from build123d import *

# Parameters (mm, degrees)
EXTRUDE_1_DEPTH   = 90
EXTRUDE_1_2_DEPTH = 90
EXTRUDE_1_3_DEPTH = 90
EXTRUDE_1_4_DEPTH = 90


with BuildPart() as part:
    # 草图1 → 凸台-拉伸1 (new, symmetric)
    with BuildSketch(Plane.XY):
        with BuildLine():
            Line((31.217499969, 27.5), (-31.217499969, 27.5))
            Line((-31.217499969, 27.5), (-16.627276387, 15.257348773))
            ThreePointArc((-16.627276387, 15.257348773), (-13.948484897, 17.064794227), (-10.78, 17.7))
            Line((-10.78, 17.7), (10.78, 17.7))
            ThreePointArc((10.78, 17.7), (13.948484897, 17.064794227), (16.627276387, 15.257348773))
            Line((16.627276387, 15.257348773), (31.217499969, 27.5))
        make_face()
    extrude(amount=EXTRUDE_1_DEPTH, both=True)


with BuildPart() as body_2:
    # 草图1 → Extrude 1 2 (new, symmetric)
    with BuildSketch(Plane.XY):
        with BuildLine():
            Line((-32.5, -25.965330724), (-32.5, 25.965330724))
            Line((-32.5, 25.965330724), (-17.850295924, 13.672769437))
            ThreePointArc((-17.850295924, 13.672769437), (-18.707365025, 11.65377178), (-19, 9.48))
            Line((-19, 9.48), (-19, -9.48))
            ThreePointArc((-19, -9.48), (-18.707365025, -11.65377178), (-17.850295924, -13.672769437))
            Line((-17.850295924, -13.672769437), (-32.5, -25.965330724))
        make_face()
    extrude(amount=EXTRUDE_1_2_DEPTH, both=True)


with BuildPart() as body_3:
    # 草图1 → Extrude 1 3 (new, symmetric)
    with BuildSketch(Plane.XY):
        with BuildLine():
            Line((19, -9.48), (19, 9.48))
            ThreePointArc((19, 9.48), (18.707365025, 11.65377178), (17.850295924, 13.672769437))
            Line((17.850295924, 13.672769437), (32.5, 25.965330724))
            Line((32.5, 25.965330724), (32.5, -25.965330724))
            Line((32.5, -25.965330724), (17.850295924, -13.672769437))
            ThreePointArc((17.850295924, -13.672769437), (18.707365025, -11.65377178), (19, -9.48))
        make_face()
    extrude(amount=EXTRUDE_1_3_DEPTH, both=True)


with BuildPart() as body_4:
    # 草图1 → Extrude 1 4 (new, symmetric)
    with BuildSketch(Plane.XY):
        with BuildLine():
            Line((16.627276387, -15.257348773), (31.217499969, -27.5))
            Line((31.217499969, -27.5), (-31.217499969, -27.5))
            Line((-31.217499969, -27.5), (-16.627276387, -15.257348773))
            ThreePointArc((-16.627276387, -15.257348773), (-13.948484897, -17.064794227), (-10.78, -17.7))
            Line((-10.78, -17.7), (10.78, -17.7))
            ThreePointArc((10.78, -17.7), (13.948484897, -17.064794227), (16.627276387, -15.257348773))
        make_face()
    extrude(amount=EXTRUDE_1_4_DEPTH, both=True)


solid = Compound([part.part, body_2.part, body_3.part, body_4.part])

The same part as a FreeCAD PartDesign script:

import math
import FreeCAD as App
import Part
import Sketcher
Q = App.Units.Quantity

doc = App.newDocument("Part")
params = doc.addObject("Spreadsheet::Sheet", "Params")
for row, (alias, value) in enumerate([
    ("sketch1_radius", "8.22 mm"),
    ("sketch1_width", "21.56 mm"),
    ("pad1_length", "180 mm"),
    ("sketch2_radius", "8.22 mm"),
    ("sketch2_height", "18.96 mm"),
    ("pad2_length", "180 mm"),
    ("sketch3_radius", "8.22 mm"),
    ("sketch3_height", "18.96 mm"),
    ("pad3_length", "180 mm"),
    ("sketch4_radius", "8.22 mm"),
    ("sketch4_width", "21.56 mm"),
    ("pad4_length", "180 mm"),
], start=1):
    params.set(f"A{row}", alias)
    params.set(f"B{row}", "=" + value)
    params.setAlias(f"B{row}", alias)

body = doc.addObject("PartDesign::Body", "Body")

sketch1 = body.newObject("Sketcher::SketchObject", "Sketch")
sketch1.AttachmentSupport = (doc.getObject("XY_Plane"), [""])
sketch1.MapMode = "FlatFace"
sketch1.addGeometry(Part.LineSegment(App.Vector(31, 28, 0), App.Vector(-31, 28, 0)), False)
sketch1.addGeometry(Part.LineSegment(App.Vector(-31, 28, 0), App.Vector(-17, 15, 0)), False)
sketch1.addGeometry(Part.ArcOfCircle(Part.Circle(App.Vector(-11, 9, 0), App.Vector(0, 0, 1), 8), math.radians(90), math.radians(135)), False)
sketch1.addGeometry(Part.LineSegment(App.Vector(-11, 18, 0), App.Vector(11, 18, 0)), False)
sketch1.addGeometry(Part.ArcOfCircle(Part.Circle(App.Vector(11, 9, 0), App.Vector(0, 0, 1), 8), math.radians(45), math.radians(90)), False)
sketch1.addGeometry(Part.LineSegment(App.Vector(17, 15, 0), App.Vector(31, 28, 0)), False)
sketch1.addConstraint(Sketcher.Constraint("Coincident", 0, 2, 1, 1))
sketch1.addConstraint(Sketcher.Constraint("Coincident", 1, 2, 2, 2))
sketch1.addConstraint(Sketcher.Constraint("Tangent", 2, 1, 3, 1))
sketch1.addConstraint(Sketcher.Constraint("Tangent", 3, 2, 4, 2))
sketch1.addConstraint(Sketcher.Constraint("Coincident", 4, 1, 5, 1))
sketch1.addConstraint(Sketcher.Constraint("Coincident", 5, 2, 0, 1))
sketch1.addConstraint(Sketcher.Constraint("Horizontal", 0))
sketch1.addConstraint(Sketcher.Constraint("Horizontal", 3))
sketch1.addConstraint(Sketcher.Constraint("Equal", 2, 4))
sketch1.addConstraint(Sketcher.Constraint("Symmetric", 1, 2, 4, 1, -2))
sketch1.addConstraint(Sketcher.Constraint("Equal", 1, 5))
sketch1.addConstraint(Sketcher.Constraint("Angle", 1, Q("-40 deg")))
sketch1.addConstraint(Sketcher.Constraint("Radius", 2, Q("8.22 mm")))
sketch1.addConstraint(Sketcher.Constraint("DistanceX", 3, 1, 3, 2, Q("21.56 mm")))
sketch1.addConstraint(Sketcher.Constraint("DistanceY", -1, 1, 0, 2, Q("27.5 mm")))
sketch1.addConstraint(Sketcher.Constraint("DistanceY", -1, 1, 2, 1, Q("17.7 mm")))
sketch1.addConstraint(Sketcher.Constraint("DistanceX", 0, 2, 0, 1, Q("62.435 mm")))
sketch1.setExpression("Constraints[12]", "Params.sketch1_radius")
sketch1.setExpression("Constraints[13]", "Params.sketch1_width")
pad1 = body.newObject("PartDesign::Pad", "Pad")
pad1.Profile = sketch1
pad1.setExpression("Length", "Params.pad1_length")
pad1.Midplane = True
body2 = doc.addObject("PartDesign::Body", "Body001")

sketch2 = body2.newObject("Sketcher::SketchObject", "Sketch001")
sketch2.AttachmentSupport = (doc.getObject("XY_Plane001"), [""])
sketch2.MapMode = "FlatFace"
sketch2.addGeometry(Part.LineSegment(App.Vector(-32.5, 26, 0), App.Vector(-32.5, -26, 0)), False)
sketch2.addGeometry(Part.LineSegment(App.Vector(-32.5, -26, 0), App.Vector(-17.9, -13.7, 0)), False)
sketch2.addGeometry(Part.ArcOfCircle(Part.Circle(App.Vector(-10.8, -9.5, 0), App.Vector(0, 0, 1), 8.2), math.radians(-180), math.radians(-149)), False)
sketch2.addGeometry(Part.LineSegment(App.Vector(-19, -9.5, 0), App.Vector(-19, 9.5, 0)), False)
sketch2.addGeometry(Part.ArcOfCircle(Part.Circle(App.Vector(-10.8, 9.5, 0), App.Vector(0, 0, 1), 8.2), math.radians(149), math.radians(180)), False)
sketch2.addGeometry(Part.LineSegment(App.Vector(-17.9, 13.7, 0), App.Vector(-32.5, 26, 0)), False)
sketch2.addConstraint(Sketcher.Constraint("Coincident", 0, 2, 1, 1))
sketch2.addConstraint(Sketcher.Constraint("Coincident", 1, 2, 2, 2))
sketch2.addConstraint(Sketcher.Constraint("Tangent", 2, 1, 3, 1))
sketch2.addConstraint(Sketcher.Constraint("Tangent", 3, 2, 4, 2))
sketch2.addConstraint(Sketcher.Constraint("Coincident", 4, 1, 5, 1))
sketch2.addConstraint(Sketcher.Constraint("Coincident", 5, 2, 0, 1))
sketch2.addConstraint(Sketcher.Constraint("Vertical", 0))
sketch2.addConstraint(Sketcher.Constraint("Vertical", 3))
sketch2.addConstraint(Sketcher.Constraint("Equal", 2, 4))
sketch2.addConstraint(Sketcher.Constraint("Symmetric", 1, 2, 4, 1, -1))
sketch2.addConstraint(Sketcher.Constraint("Equal", 1, 5))
sketch2.addConstraint(Sketcher.Constraint("Angle", 1, Q("40 deg")))
sketch2.addConstraint(Sketcher.Constraint("Radius", 2, Q("8.22 mm")))
sketch2.addConstraint(Sketcher.Constraint("DistanceX", 2, 1, -1, 1, Q("19 mm")))
sketch2.addConstraint(Sketcher.Constraint("DistanceY", 3, 1, 3, 2, Q("18.96 mm")))
sketch2.addConstraint(Sketcher.Constraint("DistanceX", 0, 2, -1, 1, Q("32.5 mm")))
sketch2.addConstraint(Sketcher.Constraint("DistanceY", 0, 2, 0, 1, Q("51.930661 mm")))
sketch2.setExpression("Constraints[12]", "Params.sketch2_radius")
sketch2.setExpression("Constraints[14]", "Params.sketch2_height")
pad2 = body2.newObject("PartDesign::Pad", "Pad001")
pad2.Profile = sketch2
pad2.setExpression("Length", "Params.pad2_length")
pad2.Midplane = True
body3 = doc.addObject("PartDesign::Body", "Body002")

sketch3 = body3.newObject("Sketcher::SketchObject", "Sketch002")
sketch3.AttachmentSupport = (doc.getObject("XY_Plane002"), [""])
sketch3.MapMode = "FlatFace"
sketch3.addGeometry(Part.LineSegment(App.Vector(19, 9.5, 0), App.Vector(19, -9.5, 0)), False)
sketch3.addGeometry(Part.ArcOfCircle(Part.Circle(App.Vector(10.8, -9.5, 0), App.Vector(0, 0, 1), 8.2), math.radians(-31), math.radians(0)), False)
sketch3.addGeometry(Part.LineSegment(App.Vector(17.9, -13.7, 0), App.Vector(32.5, -26, 0)), False)
sketch3.addGeometry(Part.LineSegment(App.Vector(32.5, -26, 0), App.Vector(32.5, 26, 0)), False)
sketch3.addGeometry(Part.LineSegment(App.Vector(32.5, 26, 0), App.Vector(17.9, 13.7, 0)), False)
sketch3.addGeometry(Part.ArcOfCircle(Part.Circle(App.Vector(10.8, 9.5, 0), App.Vector(0, 0, 1), 8.2), math.radians(0), math.radians(31)), False)
sketch3.addConstraint(Sketcher.Constraint("Tangent", 0, 2, 1, 2))
sketch3.addConstraint(Sketcher.Constraint("Coincident", 1, 1, 2, 1))
sketch3.addConstraint(Sketcher.Constraint("Coincident", 2, 2, 3, 1))
sketch3.addConstraint(Sketcher.Constraint("Coincident", 3, 2, 4, 1))
sketch3.addConstraint(Sketcher.Constraint("Coincident", 4, 2, 5, 2))
sketch3.addConstraint(Sketcher.Constraint("Tangent", 5, 1, 0, 1))
sketch3.addConstraint(Sketcher.Constraint("Vertical", 0))
sketch3.addConstraint(Sketcher.Constraint("Vertical", 3))
sketch3.addConstraint(Sketcher.Constraint("Equal", 1, 5))
sketch3.addConstraint(Sketcher.Constraint("Symmetric", 1, 1, 4, 2, -1))
sketch3.addConstraint(Sketcher.Constraint("Equal", 2, 4))
sketch3.addConstraint(Sketcher.Constraint("Angle", 2, Q("-40 deg")))
sketch3.addConstraint(Sketcher.Constraint("Radius", 1, Q("8.22 mm")))
sketch3.addConstraint(Sketcher.Constraint("DistanceX", -1, 1, 0, 2, Q("19 mm")))
sketch3.addConstraint(Sketcher.Constraint("DistanceY", 0, 2, 0, 1, Q("18.96 mm")))
sketch3.addConstraint(Sketcher.Constraint("DistanceX", -1, 1, 2, 2, Q("32.5 mm")))
sketch3.addConstraint(Sketcher.Constraint("DistanceY", 3, 1, 3, 2, Q("51.930661 mm")))
sketch3.setExpression("Constraints[12]", "Params.sketch3_radius")
sketch3.setExpression("Constraints[14]", "Params.sketch3_height")
pad3 = body3.newObject("PartDesign::Pad", "Pad002")
pad3.Profile = sketch3
pad3.setExpression("Length", "Params.pad3_length")
pad3.Midplane = True
body4 = doc.addObject("PartDesign::Body", "Body003")

sketch4 = body4.newObject("Sketcher::SketchObject", "Sketch003")
sketch4.AttachmentSupport = (doc.getObject("XY_Plane003"), [""])
sketch4.MapMode = "FlatFace"
sketch4.addGeometry(Part.LineSegment(App.Vector(31, -28, 0), App.Vector(17, -15, 0)), False)
sketch4.addGeometry(Part.ArcOfCircle(Part.Circle(App.Vector(11, -9, 0), App.Vector(0, 0, 1), 8), math.radians(-90), math.radians(-45)), False)
sketch4.addGeometry(Part.LineSegment(App.Vector(11, -18, 0), App.Vector(-11, -18, 0)), False)
sketch4.addGeometry(Part.ArcOfCircle(Part.Circle(App.Vector(-11, -9, 0), App.Vector(0, 0, 1), 8), math.radians(-135), math.radians(-90)), False)
sketch4.addGeometry(Part.LineSegment(App.Vector(-17, -15, 0), App.Vector(-31, -28, 0)), False)
sketch4.addGeometry(Part.LineSegment(App.Vector(-31, -28, 0), App.Vector(31, -28, 0)), False)
sketch4.addConstraint(Sketcher.Constraint("Coincident", 0, 2, 1, 2))
sketch4.addConstraint(Sketcher.Constraint("Tangent", 1, 1, 2, 1))
sketch4.addConstraint(Sketcher.Constraint("Tangent", 2, 2, 3, 2))
sketch4.addConstraint(Sketcher.Constraint("Coincident", 3, 1, 4, 1))
sketch4.addConstraint(Sketcher.Constraint("Coincident", 4, 2, 5, 1))
sketch4.addConstraint(Sketcher.Constraint("Coincident", 5, 2, 0, 1))
sketch4.addConstraint(Sketcher.Constraint("Horizontal", 2))
sketch4.addConstraint(Sketcher.Constraint("Horizontal", 5))
sketch4.addConstraint(Sketcher.Constraint("Equal", 1, 3))
sketch4.addConstraint(Sketcher.Constraint("Symmetric", 0, 2, 3, 1, -2))
sketch4.addConstraint(Sketcher.Constraint("Equal", 0, 4))
sketch4.addConstraint(Sketcher.Constraint("Angle", 0, Q("140 deg")))
sketch4.addConstraint(Sketcher.Constraint("Radius", 1, Q("8.22 mm")))
sketch4.addConstraint(Sketcher.Constraint("DistanceX", 2, 2, 2, 1, Q("21.56 mm")))
sketch4.addConstraint(Sketcher.Constraint("DistanceY", 1, 1, -1, 1, Q("17.7 mm")))
sketch4.addConstraint(Sketcher.Constraint("DistanceY", 4, 2, -1, 1, Q("27.5 mm")))
sketch4.addConstraint(Sketcher.Constraint("DistanceX", 5, 1, 5, 2, Q("62.435 mm")))
sketch4.setExpression("Constraints[12]", "Params.sketch4_radius")
sketch4.setExpression("Constraints[13]", "Params.sketch4_width")
pad4 = body4.newObject("PartDesign::Pad", "Pad003")
pad4.Profile = sketch4
pad4.setExpression("Length", "Params.pad4_length")
pad4.Midplane = True

doc.recompute()
